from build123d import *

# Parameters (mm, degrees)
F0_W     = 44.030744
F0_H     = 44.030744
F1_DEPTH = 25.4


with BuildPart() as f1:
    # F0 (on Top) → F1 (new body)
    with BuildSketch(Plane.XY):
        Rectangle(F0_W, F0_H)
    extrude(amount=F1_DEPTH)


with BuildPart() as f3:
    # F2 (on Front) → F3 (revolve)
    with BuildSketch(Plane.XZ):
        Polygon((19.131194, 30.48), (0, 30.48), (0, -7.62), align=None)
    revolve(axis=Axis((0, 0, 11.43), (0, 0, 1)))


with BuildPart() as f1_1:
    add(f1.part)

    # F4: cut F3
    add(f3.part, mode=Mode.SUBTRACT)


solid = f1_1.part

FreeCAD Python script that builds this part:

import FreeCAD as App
import Part
import Sketcher
Q = App.Units.Quantity

doc = App.newDocument("Part")
params = doc.addObject("Spreadsheet::Sheet", "Params")
for row, (alias, value) in enumerate([
    ("pad1_length", "1 in"),
    ("sketch2_height", "1.5 in"),
    ("revolution_angle", "360 deg"),
], start=1):
    params.set(f"A{row}", alias)
    params.set(f"B{row}", "=" + value)
    params.setAlias(f"B{row}", alias)

body = doc.addObject("PartDesign::Body", "Body")

# Sketch on XY plane
sketch1 = body.newObject("Sketcher::SketchObject", "Sketch")
sketch1.AttachmentSupport = (doc.getObject("XY_Plane"), [""])
sketch1.MapMode = "FlatFace"
sketch1.addGeometry(Part.LineSegment(App.Vector(-22, 22, 0), App.Vector(-22, -22, 0)), False)
sketch1.addGeometry(Part.LineSegment(App.Vector(-22, -22, 0), App.Vector(22, -22, 0)), False)
sketch1.addGeometry(Part.LineSegment(App.Vector(22, -22, 0), App.Vector(22, 22, 0)), False)
sketch1.addGeometry(Part.LineSegment(App.Vector(22, 22, 0), App.Vector(-22, 22, 0)), False)
sketch1.addConstraint(Sketcher.Constraint("Coincident", 0, 2, 1, 1))
sketch1.addConstraint(Sketcher.Constraint("Coincident", 1, 2, 2, 1))
sketch1.addConstraint(Sketcher.Constraint("Coincident", 2, 2, 3, 1))
sketch1.addConstraint(Sketcher.Constraint("Coincident", 3, 2, 0, 1))
sketch1.addConstraint(Sketcher.Constraint("Vertical", 0))
sketch1.addConstraint(Sketcher.Constraint("Horizontal", 1))
sketch1.addConstraint(Sketcher.Constraint("Vertical", 2))
sketch1.addConstraint(Sketcher.Constraint("Horizontal", 3))
sketch1.addConstraint(Sketcher.Constraint("Symmetric", 0, 2, 2, 2, -1, 1))
sketch1.addConstraint(Sketcher.Constraint("Equal", 3, 0))
sketch1.addConstraint(Sketcher.Constraint("DistanceX", 1, 1, 1, 2, 44.030744))
pad1 = body.newObject("PartDesign::Pad", "Pad")
pad1.Profile = sketch1
pad1.setExpression("Length", "Params.pad1_length")
body2 = doc.addObject("PartDesign::Body", "Body001")

# Sketch on XZ plane
sketch2 = body2.newObject("Sketcher::SketchObject", "Sketch001")
sketch2.AttachmentSupport = (doc.getObject("XZ_Plane001"), [""])
sketch2.MapMode = "FlatFace"
sketch2.addGeometry(Part.LineSegment(App.Vector(19, 30, 0), App.Vector(0, 30, 0)), False)
sketch2.addGeometry(Part.LineSegment(App.Vector(0, 30, 0), App.Vector(0, -8, 0)), False)
sketch2.addGeometry(Part.LineSegment(App.Vector(0, -8, 0), App.Vector(19, 30, 0)), False)
sketch2.addConstraint(Sketcher.Constraint("Coincident", 0, 2, 1, 1))
sketch2.addConstraint(Sketcher.Constraint("Coincident", 1, 2, 2, 1))
sketch2.addConstraint(Sketcher.Constraint("Coincident", 2, 2, 0, 1))
sketch2.addConstraint(Sketcher.Constraint("Horizontal", 0))
sketch2.addConstraint(Sketcher.Constraint("Vertical", 1))
sketch2.addConstraint(Sketcher.Constraint("PointOnObject", 0, 2, -2))
sketch2.addConstraint(Sketcher.Constraint("DistanceY", 1, 2, 1, 1, Q("1.5 in")))
sketch2.addConstraint(Sketcher.Constraint("DistanceY", -1, 1, 0, 2, Q("1.2 in")))
sketch2.addConstraint(Sketcher.Constraint("DistanceX", 0, 2, 0, 1, 19.131194))
sketch2.setExpression("Constraints[6]", "Params.sketch2_height")
revolution = body2.newObject("PartDesign::Revolution", "Revolution")
revolution.Profile = sketch2
revolution.ReferenceAxis = (sketch2, ["V_Axis"])
revolution.setExpression("Angle", "Params.revolution_angle")
doc.recompute()

boolean = body.newObject("PartDesign::Boolean", "Boolean")
boolean.Type = "Cut"
boolean.addObjects([body2])

doc.recompute()
